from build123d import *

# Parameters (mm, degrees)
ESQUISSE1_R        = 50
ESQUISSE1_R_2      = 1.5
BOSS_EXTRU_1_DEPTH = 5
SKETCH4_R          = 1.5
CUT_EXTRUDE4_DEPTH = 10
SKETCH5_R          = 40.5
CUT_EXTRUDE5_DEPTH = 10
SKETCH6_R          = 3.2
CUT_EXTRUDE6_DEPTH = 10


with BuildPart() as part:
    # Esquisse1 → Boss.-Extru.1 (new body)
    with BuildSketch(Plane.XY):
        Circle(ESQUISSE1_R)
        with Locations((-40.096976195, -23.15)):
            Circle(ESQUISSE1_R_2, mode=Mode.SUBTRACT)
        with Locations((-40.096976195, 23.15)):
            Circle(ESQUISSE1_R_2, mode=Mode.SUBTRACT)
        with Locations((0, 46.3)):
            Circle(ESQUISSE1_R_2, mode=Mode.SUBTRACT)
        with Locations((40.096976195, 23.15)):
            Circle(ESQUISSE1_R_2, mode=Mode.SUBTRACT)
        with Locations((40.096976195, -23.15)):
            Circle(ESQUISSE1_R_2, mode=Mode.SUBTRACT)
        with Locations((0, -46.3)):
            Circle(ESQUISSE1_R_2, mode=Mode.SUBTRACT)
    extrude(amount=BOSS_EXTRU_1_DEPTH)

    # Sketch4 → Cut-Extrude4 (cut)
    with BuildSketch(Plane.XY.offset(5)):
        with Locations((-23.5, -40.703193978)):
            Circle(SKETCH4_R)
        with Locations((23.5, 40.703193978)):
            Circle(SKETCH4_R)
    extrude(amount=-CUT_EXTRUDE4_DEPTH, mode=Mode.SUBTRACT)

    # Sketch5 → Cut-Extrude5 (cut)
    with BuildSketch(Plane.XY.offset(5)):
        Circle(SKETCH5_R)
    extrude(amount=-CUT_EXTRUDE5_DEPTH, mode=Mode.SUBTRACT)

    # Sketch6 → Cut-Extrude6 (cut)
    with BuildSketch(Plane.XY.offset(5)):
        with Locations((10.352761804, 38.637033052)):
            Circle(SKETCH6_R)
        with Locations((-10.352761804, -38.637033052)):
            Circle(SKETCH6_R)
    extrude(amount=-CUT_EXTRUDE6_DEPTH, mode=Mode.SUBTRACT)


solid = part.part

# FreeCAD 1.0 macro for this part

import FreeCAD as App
import Part
import Sketcher

doc = App.newDocument("Part")
params = doc.addObject("Spreadsheet::Sheet", "Params")
for row, (alias, value) in enumerate([
    ("sketch1_diameter", "100 mm"),
    ("sketch1_diameter2", "3 mm"),
    ("pad1_length", "5 mm"),
    ("sketch2_diameter", "3 mm"),
    ("pocket1_length", "10 mm"),
    ("sketch3_diameter", "81 mm"),
    ("pocket2_length", "10 mm"),
    ("sketch4_diameter", "6.4 mm"),
    ("pocket3_length", "10 mm"),
], start=1):
    params.set(f"A{row}", alias)
    params.set(f"B{row}", "=" + value)
    params.setAlias(f"B{row}", alias)

body = doc.addObject("PartDesign::Body", "Body")

sketch1 = body.newObject("Sketcher::SketchObject", "Sketch")
sketch1.AttachmentSupport = (doc.getObject("XY_Plane"), [""])
sketch1.MapMode = "FlatFace"
sketch1.addGeometry(Part.Circle(App.Vector(0, 0, 0), App.Vector(0, 0, 1), 50), False)
sketch1.addGeometry(Part.Circle(App.Vector(-40.1, -23.1, 0), App.Vector(0, 0, 1), 1.5), False)
sketch1.addGeometry(Part.Circle(App.Vector(0, -46.3, 0), App.Vector(0, 0, 1), 1.5), False)
sketch1.addGeometry(Part.Circle(App.Vector(40.1, -23.1, 0), App.Vector(0, 0, 1), 1.5), False)
sketch1.addGeometry(Part.Circle(App.Vector(-40.1, 23.1, 0), App.Vector(0, 0, 1), 1.5), False)
sketch1.addGeometry(Part.Circle(App.Vector(40.1, 23.1, 0), App.Vector(0, 0, 1), 1.5), False)
sketch1.addGeometry(Part.Circle(App.Vector(0, 46.3, 0), App.Vector(0, 0, 1), 1.5), False)
sketch1.addConstraint(Sketcher.Constraint("Coincident", 0, 3, -1, 1))
sketch1.addConstraint(Sketcher.Constraint("Equal", 1, 2))
sketch1.addConstraint(Sketcher.Constraint("Equal", 2, 3))
sketch1.addConstraint(Sketcher.Constraint("Equal", 3, 4))
sketch1.addConstraint(Sketcher.Constraint("Equal", 4, 5))
sketch1.addConstraint(Sketcher.Constraint("Equal", 5, 6))
sketch1.addConstraint(Sketcher.Constraint("Symmetric", 3, 3, 4, 3, -1, 1))
sketch1.addConstraint(Sketcher.Constraint("Symmetric", 1, 3, 5, 3, -1, 1))
sketch1.addConstraint(Sketcher.Constraint("Symmetric", 2, 3, 6, 3, -1, 1))
sketch1.addConstraint(Sketcher.Constraint("Symmetric", 1, 3, 3, 3, -2))
sketch1.addConstraint(Sketcher.Constraint("PointOnObject", 2, 3, -2))
sketch1.addConstraint(Sketcher.Constraint("Diameter", 0, 100.0))
sketch1.addConstraint(Sketcher.Constraint("Diameter", 1, 3.0))
sketch1.addConstraint(Sketcher.Constraint("DistanceY", 2, 3, -1, 1, 46.3))
sketch1.addConstraint(Sketcher.Constraint("DistanceY", 1, 3, 4, 3, 46.3))
sketch1.addConstraint(Sketcher.Constraint("DistanceX", 1, 3, -1, 1, 40.096976))
sketch1.setExpression("Constraints[11]", "Params.sketch1_diameter")
sketch1.setExpression("Constraints[12]", "Params.sketch1_diameter2")
pad1 = body.newObject("PartDesign::Pad", "Pad")
pad1.Profile = sketch1
pad1.setExpression("Length", "Params.pad1_length")

sketch2 = body.newObject("Sketcher::SketchObject", "Sketch001")
sketch2.AttachmentSupport = (doc.getObject("XY_Plane"), [""])
sketch2.MapMode = "FlatFace"
sketch2.AttachmentOffset = App.Placement(App.Vector(0, 0, 5), App.Rotation())
sketch2.addGeometry(Part.Circle(App.Vector(-23.5, -40.7, 0), App.Vector(0, 0, 1), 1.5), False)
sketch2.addGeometry(Part.Circle(App.Vector(23.5, 40.7, 0), App.Vector(0, 0, 1), 1.5), False)
sketch2.addConstraint(Sketcher.Constraint("Equal", 0, 1))
sketch2.addConstraint(Sketcher.Constraint("Symmetric", 0, 3, 1, 3, -1, 1))
sketch2.addConstraint(Sketcher.Constraint("Diameter", 0, 3.0))
sketch2.addConstraint(Sketcher.Constraint("DistanceX", 0, 3, 1, 3, 47.0))
sketch2.addConstraint(Sketcher.Constraint("DistanceY", 0, 3, -1, 1, 40.703194))
sketch2.setExpression("Constraints[2]", "Params.sketch2_diameter")
pocket1 = body.newObject("PartDesign::Pocket", "Pocket")
pocket1.Profile = sketch2
pocket1.setExpression("Length", "Params.pocket1_length")

sketch3 = body.newObject("Sketcher::SketchObject", "Sketch002")
sketch3.AttachmentSupport = (doc.getObject("XY_Plane"), [""])
sketch3.MapMode = "FlatFace"
sketch3.AttachmentOffset = App.Placement(App.Vector(0, 0, 5), App.Rotation())
sketch3.addGeometry(Part.Circle(App.Vector(0, 0, 0), App.Vector(0, 0, 1), 40), False)
sketch3.addConstraint(Sketcher.Constraint("Coincident", 0, 3, -1, 1))
sketch3.addConstraint(Sketcher.Constraint("Diameter", 0, 81.0))
sketch3.setExpression("Constraints[1]", "Params.sketch3_diameter")
pocket2 = body.newObject("PartDesign::Pocket", "Pocket001")
pocket2.Profile = sketch3
pocket2.setExpression("Length", "Params.pocket2_length")

sketch4 = body.newObject("Sketcher::SketchObject", "Sketch003")
sketch4.AttachmentSupport = (doc.getObject("XY_Plane"), [""])
sketch4.MapMode = "FlatFace"
sketch4.AttachmentOffset = App.Placement(App.Vector(0, 0, 5), App.Rotation())
sketch4.addGeometry(Part.Circle(App.Vector(10.4, 38.6, 0), App.Vector(0, 0, 1), 3.2), False)
sketch4.addGeometry(Part.Circle(App.Vector(-10.4, -38.6, 0), App.Vector(0, 0, 1), 3.2), False)
sketch4.addConstraint(Sketcher.Constraint("Equal", 0, 1))
sketch4.addConstraint(Sketcher.Constraint("Symmetric", 0, 3, 1, 3, -1, 1))
sketch4.addConstraint(Sketcher.Constraint("Diameter", 0, 6.4))
sketch4.addConstraint(Sketcher.Constraint("DistanceX", -1, 1, 0, 3, 10.352762))
sketch4.addConstraint(Sketcher.Constraint("DistanceY", -1, 1, 0, 3, 38.637033))
sketch4.setExpression("Constraints[2]", "Params.sketch4_diameter")
pocket3 = body.newObject("PartDesign::Pocket", "Pocket002")
pocket3.Profile = sketch4
pocket3.setExpression("Length", "Params.pocket3_length")

doc.recompute()
